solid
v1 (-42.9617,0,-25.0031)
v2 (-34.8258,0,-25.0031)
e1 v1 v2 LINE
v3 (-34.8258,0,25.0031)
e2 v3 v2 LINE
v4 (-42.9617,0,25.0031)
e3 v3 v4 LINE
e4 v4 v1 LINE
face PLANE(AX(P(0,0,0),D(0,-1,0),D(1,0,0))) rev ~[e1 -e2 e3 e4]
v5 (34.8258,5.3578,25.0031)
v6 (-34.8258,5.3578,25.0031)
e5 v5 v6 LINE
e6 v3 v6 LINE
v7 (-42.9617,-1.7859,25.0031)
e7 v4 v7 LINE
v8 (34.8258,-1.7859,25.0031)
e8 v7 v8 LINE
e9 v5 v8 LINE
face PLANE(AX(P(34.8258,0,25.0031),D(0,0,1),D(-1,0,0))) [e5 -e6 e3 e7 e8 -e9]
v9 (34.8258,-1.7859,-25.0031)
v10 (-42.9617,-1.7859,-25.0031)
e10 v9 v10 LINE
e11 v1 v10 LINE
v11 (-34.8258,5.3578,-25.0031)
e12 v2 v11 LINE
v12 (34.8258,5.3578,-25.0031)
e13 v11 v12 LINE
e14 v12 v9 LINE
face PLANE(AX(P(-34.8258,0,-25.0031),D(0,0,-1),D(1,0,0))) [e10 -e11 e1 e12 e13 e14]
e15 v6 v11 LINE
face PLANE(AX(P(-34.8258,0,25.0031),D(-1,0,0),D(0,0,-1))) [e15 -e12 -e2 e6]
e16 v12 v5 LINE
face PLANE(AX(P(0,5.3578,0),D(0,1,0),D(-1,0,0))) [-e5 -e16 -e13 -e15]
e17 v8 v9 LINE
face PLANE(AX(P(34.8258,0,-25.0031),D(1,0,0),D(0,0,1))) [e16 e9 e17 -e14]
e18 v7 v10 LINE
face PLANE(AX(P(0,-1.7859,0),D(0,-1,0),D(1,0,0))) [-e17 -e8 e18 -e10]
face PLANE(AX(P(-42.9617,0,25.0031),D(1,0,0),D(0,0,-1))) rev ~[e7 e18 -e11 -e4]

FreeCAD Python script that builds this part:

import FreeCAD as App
import Part
import Sketcher

V = App.Vector
Q = App.Units.Quantity


def add_polygon(sketch, points):
    """Adds a closed chain of lines whose ends are joined by coincident constraints."""
    first, n = sketch.GeometryCount, len(points)
    for a, b in zip(points, points[1:] + points[:1]):
        sketch.addGeometry(Part.LineSegment(App.Vector(*a, 0), App.Vector(*b, 0)), False)
    for i in range(n):
        sketch.addConstraint(Sketcher.Constraint("Coincident", first + i, 2, first + (i + 1) % n, 1))

doc = App.newDocument("Part")
body = doc.addObject("PartDesign::Body", "Body")

sketch1 = body.newObject("Sketcher::SketchObject", "Sketch")
sketch1.AttachmentSupport = (doc.getObject("XZ_Plane"), [""])
sketch1.MapMode = "FlatFace"
add_polygon(sketch1, [(35, -25), (-35, -25), (-35, 25), (35, 25)])
sketch1.addConstraint([
    Sketcher.Constraint("Horizontal", 0),
    Sketcher.Constraint("Vertical", 1),
    Sketcher.Constraint("Horizontal", 2),
    Sketcher.Constraint("Vertical", 3),
    Sketcher.Constraint("Symmetric", 0, 2, 2, 2, -1, 1),
    Sketcher.Constraint("DistanceY", 1, 1, 1, 2, Q("1.968748 in")),
    Sketcher.Constraint("DistanceX", 0, 2, 0, 1, Q("2.7422 in")),
])
pad1 = body.newObject("PartDesign::Pad", "Pad")
pad1.Profile = sketch1
pad1.Length = 5.3578
pad1.Reversed = True

sketch2 = body.newObject("Sketcher::SketchObject", "Sketch001")
sketch2.AttachmentSupport = (doc.getObject("XZ_Plane"), [""])
sketch2.MapMode = "FlatFace"
add_polygon(sketch2, [(35, -25), (35, 25), (-43, 25), (-43, -25)])
sketch2.addConstraint([
    Sketcher.Constraint("Vertical", 0),
    Sketcher.Constraint("Horizontal", 1),
    Sketcher.Constraint("Vertical", 2),
    Sketcher.Constraint("Horizontal", 3),
    Sketcher.Constraint("DistanceX", 1, 2, 1, 1, Q("3.0625 in")),
    Sketcher.Constraint("DistanceY", 0, 1, 0, 2, Q("1.968748 in")),
    Sketcher.Constraint("DistanceY", -1, 1, 0, 2, Q("0.9843701 in")),
    Sketcher.Constraint("DistanceX", -1, 1, 0, 2, Q("1.3711 in")),
])
pad2 = body.newObject("PartDesign::Pad", "Pad001")
pad2.Profile = sketch2
pad2.Length = Q("0.070311 in")

doc.recompute()
